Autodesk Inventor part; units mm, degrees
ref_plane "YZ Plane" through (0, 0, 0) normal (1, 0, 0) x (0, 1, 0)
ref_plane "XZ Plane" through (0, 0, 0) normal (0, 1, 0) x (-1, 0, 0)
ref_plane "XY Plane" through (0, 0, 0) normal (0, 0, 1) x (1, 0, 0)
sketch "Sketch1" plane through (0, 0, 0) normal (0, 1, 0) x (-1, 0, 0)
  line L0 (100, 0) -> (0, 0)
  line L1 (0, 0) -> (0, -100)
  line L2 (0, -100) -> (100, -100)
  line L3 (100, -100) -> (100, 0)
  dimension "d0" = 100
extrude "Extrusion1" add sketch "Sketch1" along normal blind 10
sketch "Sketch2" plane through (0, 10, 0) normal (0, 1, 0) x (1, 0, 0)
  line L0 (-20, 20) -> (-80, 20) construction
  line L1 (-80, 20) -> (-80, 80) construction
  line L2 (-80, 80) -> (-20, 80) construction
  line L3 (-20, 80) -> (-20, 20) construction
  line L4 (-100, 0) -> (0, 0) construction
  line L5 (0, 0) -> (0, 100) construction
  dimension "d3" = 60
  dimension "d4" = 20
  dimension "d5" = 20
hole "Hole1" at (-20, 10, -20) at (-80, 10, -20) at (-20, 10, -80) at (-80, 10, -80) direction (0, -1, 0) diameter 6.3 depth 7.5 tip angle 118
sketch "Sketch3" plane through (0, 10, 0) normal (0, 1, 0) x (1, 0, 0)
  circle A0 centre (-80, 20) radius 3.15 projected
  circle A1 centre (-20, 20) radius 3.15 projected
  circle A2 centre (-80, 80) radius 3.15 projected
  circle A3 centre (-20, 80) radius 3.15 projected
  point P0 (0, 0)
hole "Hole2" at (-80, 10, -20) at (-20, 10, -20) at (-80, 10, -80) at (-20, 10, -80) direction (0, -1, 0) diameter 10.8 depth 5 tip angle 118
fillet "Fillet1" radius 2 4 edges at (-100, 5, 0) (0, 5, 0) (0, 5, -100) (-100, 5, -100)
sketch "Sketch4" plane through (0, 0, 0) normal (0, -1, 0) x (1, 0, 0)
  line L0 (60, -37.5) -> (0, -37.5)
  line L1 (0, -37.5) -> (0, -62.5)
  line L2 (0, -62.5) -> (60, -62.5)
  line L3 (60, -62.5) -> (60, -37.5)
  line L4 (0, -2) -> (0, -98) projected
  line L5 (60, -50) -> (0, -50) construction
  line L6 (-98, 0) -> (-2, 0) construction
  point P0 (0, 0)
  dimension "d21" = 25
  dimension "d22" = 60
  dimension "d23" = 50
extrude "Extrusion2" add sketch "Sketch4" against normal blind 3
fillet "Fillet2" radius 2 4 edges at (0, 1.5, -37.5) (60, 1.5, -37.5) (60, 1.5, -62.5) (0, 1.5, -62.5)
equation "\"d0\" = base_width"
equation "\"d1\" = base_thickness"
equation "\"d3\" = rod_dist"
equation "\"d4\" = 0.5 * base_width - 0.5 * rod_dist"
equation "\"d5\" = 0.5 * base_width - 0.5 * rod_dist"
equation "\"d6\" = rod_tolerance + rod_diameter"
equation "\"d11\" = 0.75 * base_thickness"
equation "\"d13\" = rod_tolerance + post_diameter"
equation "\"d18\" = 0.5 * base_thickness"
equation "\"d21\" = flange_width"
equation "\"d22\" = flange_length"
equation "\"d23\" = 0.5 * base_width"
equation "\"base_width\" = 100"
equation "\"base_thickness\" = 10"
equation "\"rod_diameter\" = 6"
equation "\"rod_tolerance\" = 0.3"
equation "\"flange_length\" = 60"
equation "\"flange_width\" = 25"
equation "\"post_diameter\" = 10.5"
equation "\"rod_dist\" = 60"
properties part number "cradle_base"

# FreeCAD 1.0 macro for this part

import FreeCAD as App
import Part
import Sketcher
Q = App.Units.Quantity


def edges_at(feature, points):
    """Names of the edges that pass closest to the given points."""
    edges = feature.Shape.Edges
    near = lambda p: min(range(len(edges)), key=lambda i: edges[i].distToShape(Part.Vertex(*p))[0])
    return sorted({f"Edge{near(p) + 1}" for p in points})


def add_polygon(sketch, points):
    """Adds a closed chain of lines whose ends are joined by coincident constraints."""
    first, n = sketch.GeometryCount, len(points)
    for a, b in zip(points, points[1:] + points[:1]):
        sketch.addGeometry(Part.LineSegment(App.Vector(*a, 0), App.Vector(*b, 0)), False)
    for i in range(n):
        sketch.addConstraint(Sketcher.Constraint("Coincident", first + i, 2, first + (i + 1) % n, 1))

doc = App.newDocument("Part")
body = doc.addObject("PartDesign::Body", "Body")

# Sketch on XZ plane
sketch1 = doc.addObject("Sketcher::SketchObject", "Sketch")
body.addObject(sketch1)
sketch1.AttachmentSupport = (doc.XZ_Plane, [""])
sketch1.MapMode = "FlatFace"
add_polygon(sketch1, [(-100, -100), (-100, 0), (0, 0), (0, -100)])  # lines 0-3
sketch1.addConstraint(Sketcher.Constraint("Vertical", 0))
sketch1.addConstraint(Sketcher.Constraint("Horizontal", 1))
sketch1.addConstraint(Sketcher.Constraint("Vertical", 2))
sketch1.addConstraint(Sketcher.Constraint("Horizontal", 3))
sketch1.addConstraint(Sketcher.Constraint("Coincident", 1, 2, -1, 1))
sketch1.addConstraint(Sketcher.Constraint("Equal", 3, 0))
sketch1.addConstraint(Sketcher.Constraint("DistanceX", 1, 1, 1, 2, Q("100 mm")))
pad1 = doc.addObject("PartDesign::Pad", "Pad")
body.addObject(pad1)
pad1.Profile = sketch1
pad1.Length = 10
pad1.Reversed = True

# Sketch on XZ plane
sketch2 = doc.addObject("Sketcher::SketchObject", "Sketch001")
body.addObject(sketch2)
sketch2.AttachmentSupport = (doc.XZ_Plane, [""])
sketch2.MapMode = "FlatFace"
sketch2.AttachmentOffset = App.Placement(App.Vector(0, 0, -10), App.Rotation())
sketch2.addGeometry(Part.Circle(App.Vector(-20, -20, 0), App.Vector(0, 0, 1), 3.1), False)
sketch2.addGeometry(Part.Circle(App.Vector(-80, -20, 0), App.Vector(0, 0, 1), 3.1), False)
sketch2.addGeometry(Part.Circle(App.Vector(-20, -80, 0), App.Vector(0, 0, 1), 3.1), False)
sketch2.addGeometry(Part.Circle(App.Vector(-80, -80, 0), App.Vector(0, 0, 1), 3.1), False)
sketch2.addConstraint(Sketcher.Constraint("Equal", 0, 1))
sketch2.addConstraint(Sketcher.Constraint("Equal", 1, 2))
sketch2.addConstraint(Sketcher.Constraint("Equal", 2, 3))
sketch2.addConstraint(Sketcher.Constraint("Horizontal", 0, 3, 1, 3))
sketch2.addConstraint(Sketcher.Constraint("Horizontal", 2, 3, 3, 3))
sketch2.addConstraint(Sketcher.Constraint("Vertical", 0, 3, 2, 3))
sketch2.addConstraint(Sketcher.Constraint("Vertical", 1, 3, 3, 3))
sketch2.addConstraint(Sketcher.Constraint("Diameter", 0, Q("6.3 mm")))
sketch2.addConstraint(Sketcher.Constraint("DistanceX", 0, 3, -1, 1, Q("20 mm")))
sketch2.addConstraint(Sketcher.Constraint("DistanceY", 0, 3, -1, 1, Q("20 mm")))
sketch2.addConstraint(Sketcher.Constraint("DistanceX", 1, 3, -1, 1, Q("80 mm")))
sketch2.addConstraint(Sketcher.Constraint("DistanceY", 2, 3, -1, 1, Q("80 mm")))
doc.recompute()
hole = doc.addObject("PartDesign::Hole", "Hole")
body.addObject(hole)
hole.Profile = sketch2
hole.ThreadType = "None"
hole.Diameter = 6.3
hole.DepthType = "Dimension"
hole.Depth = 7.5
hole.DrillPoint = "Angled"
hole.DrillPointAngle = 118
hole.Reversed = True

# Sketch on XZ plane
sketch3 = doc.addObject("Sketcher::SketchObject", "Sketch002")
body.addObject(sketch3)
sketch3.AttachmentSupport = (doc.XZ_Plane, [""])
sketch3.MapMode = "FlatFace"
sketch3.AttachmentOffset = App.Placement(App.Vector(0, 0, -10), App.Rotation())
sketch3.addGeometry(Part.Circle(App.Vector(-80, -20, 0), App.Vector(0, 0, 1), 5), False)
sketch3.addGeometry(Part.Circle(App.Vector(-20, -20, 0), App.Vector(0, 0, 1), 5), False)
sketch3.addGeometry(Part.Circle(App.Vector(-80, -80, 0), App.Vector(0, 0, 1), 5), False)
sketch3.addGeometry(Part.Circle(App.Vector(-20, -80, 0), App.Vector(0, 0, 1), 5), False)
sketch3.addConstraint(Sketcher.Constraint("Equal", 0, 1))
sketch3.addConstraint(Sketcher.Constraint("Equal", 1, 2))
sketch3.addConstraint(Sketcher.Constraint("Equal", 2, 3))
sketch3.addConstraint(Sketcher.Constraint("Horizontal", 0, 3, 1, 3))
sketch3.addConstraint(Sketcher.Constraint("Horizontal", 2, 3, 3, 3))
sketch3.addConstraint(Sketcher.Constraint("Vertical", 0, 3, 2, 3))
sketch3.addConstraint(Sketcher.Constraint("Vertical", 1, 3, 3, 3))
sketch3.addConstraint(Sketcher.Constraint("Diameter", 0, Q("10.8 mm")))
sketch3.addConstraint(Sketcher.Constraint("DistanceX", 0, 3, -1, 1, Q("80 mm")))
sketch3.addConstraint(Sketcher.Constraint("DistanceY", 0, 3, -1, 1, Q("20 mm")))
sketch3.addConstraint(Sketcher.Constraint("DistanceX", 1, 3, -1, 1, Q("20 mm")))
sketch3.addConstraint(Sketcher.Constraint("DistanceY", 2, 3, -1, 1, Q("80 mm")))
doc.recompute()
hole2 = doc.addObject("PartDesign::Hole", "Hole001")
body.addObject(hole2)
hole2.Profile = sketch3
hole2.ThreadType = "None"
hole2.Diameter = 10.8
hole2.DepthType = "Dimension"
hole2.Depth = 5
hole2.DrillPoint = "Angled"
hole2.DrillPointAngle = 118
hole2.Reversed = True
doc.recompute()

fillet = doc.addObject("PartDesign::Fillet", "Fillet")
body.addObject(fillet)
fillet.Base = (hole2, edges_at(hole2, [
    (-100, 5, 0),
    (0, 5, 0),
    (0, 5, -100),
    (-100, 5, -100),
]))
fillet.Radius = 2

# Sketch on XZ plane
sketch4 = doc.addObject("Sketcher::SketchObject", "Sketch003")
body.addObject(sketch4)
sketch4.AttachmentSupport = (doc.XZ_Plane, [""])
sketch4.MapMode = "FlatFace"
add_polygon(sketch4, [(60, -62), (60, -38), (0, -38), (0, -62)])  # lines 0-3
sketch4.addConstraint(Sketcher.Constraint("Vertical", 0))
sketch4.addConstraint(Sketcher.Constraint("Horizontal", 1))
sketch4.addConstraint(Sketcher.Constraint("Vertical", 2))
sketch4.addConstraint(Sketcher.Constraint("Horizontal", 3))
sketch4.addConstraint(Sketcher.Constraint("PointOnObject", 1, 2, -2))
sketch4.addConstraint(Sketcher.Constraint("DistanceX", 1, 2, 1, 1, Q("60 mm")))
sketch4.addConstraint(Sketcher.Constraint("DistanceY", 0, 1, 0, 2, Q("25 mm")))
sketch4.addConstraint(Sketcher.Constraint("DistanceY", 0, 2, -1, 1, Q("37.5 mm")))
pad2 = doc.addObject("PartDesign::Pad", "Pad001")
body.addObject(pad2)
pad2.Profile = sketch4
pad2.Length = 3
pad2.Reversed = True
doc.recompute()

fillet2 = doc.addObject("PartDesign::Fillet", "Fillet001")
body.addObject(fillet2)
fillet2.Base = (pad2, edges_at(pad2, [
    (0, 1.5, -37.5),
    (60, 1.5, -37.5),
    (60, 1.5, -62.5),
    (0, 1.5, -62.5),
]))
fillet2.Radius = 2

doc.recompute()
